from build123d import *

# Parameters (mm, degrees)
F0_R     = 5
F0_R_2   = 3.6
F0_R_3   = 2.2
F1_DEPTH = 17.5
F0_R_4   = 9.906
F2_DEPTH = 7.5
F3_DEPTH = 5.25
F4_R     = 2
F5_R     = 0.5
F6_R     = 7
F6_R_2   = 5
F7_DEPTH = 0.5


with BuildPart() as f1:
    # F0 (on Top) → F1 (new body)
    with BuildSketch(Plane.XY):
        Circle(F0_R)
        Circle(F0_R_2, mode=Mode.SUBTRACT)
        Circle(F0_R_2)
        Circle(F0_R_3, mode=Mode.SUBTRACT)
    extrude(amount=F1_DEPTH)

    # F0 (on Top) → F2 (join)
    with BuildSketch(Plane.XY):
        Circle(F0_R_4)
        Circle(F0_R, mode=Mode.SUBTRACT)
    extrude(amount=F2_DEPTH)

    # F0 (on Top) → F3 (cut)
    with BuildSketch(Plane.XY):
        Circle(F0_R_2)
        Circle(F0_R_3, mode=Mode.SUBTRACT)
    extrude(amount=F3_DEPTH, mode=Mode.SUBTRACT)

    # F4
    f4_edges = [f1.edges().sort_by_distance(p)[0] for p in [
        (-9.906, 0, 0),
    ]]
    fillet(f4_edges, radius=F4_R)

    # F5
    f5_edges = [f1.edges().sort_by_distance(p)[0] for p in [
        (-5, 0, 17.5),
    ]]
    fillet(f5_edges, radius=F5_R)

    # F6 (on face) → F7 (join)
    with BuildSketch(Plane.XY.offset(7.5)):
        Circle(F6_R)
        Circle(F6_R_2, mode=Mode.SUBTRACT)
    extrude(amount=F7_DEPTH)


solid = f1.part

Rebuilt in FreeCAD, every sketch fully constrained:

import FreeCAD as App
import Part
import Sketcher
from FreeCAD import Vector
Q = App.Units.Quantity


def edges_at(feature, points):
    """Names of the edges that pass closest to the given points."""
    edges = feature.Shape.Edges
    near = lambda p: min(range(len(edges)), key=lambda i: edges[i].distToShape(Part.Vertex(*p))[0])
    return sorted({f"Edge{near(p) + 1}" for p in points})

doc = App.newDocument("Part")
body = doc.addObject("PartDesign::Body", "Body")

sketch1 = doc.addObject("Sketcher::SketchObject", "Sketch")
body.addObject(sketch1)
sketch1.AttachmentSupport = (doc.XY_Plane, [""])
sketch1.MapMode = "FlatFace"
sketch1.addGeometry([
    Part.Circle(Vector(0, 0, 0), Vector(0, 0, 1), 5),
    Part.Circle(Vector(0, 0, 0), Vector(0, 0, 1), 2.2),
], False)
sketch1.addConstraint([
    Sketcher.Constraint("Coincident", 0, 3, -1, 1),
    Sketcher.Constraint("Coincident", 1, 3, -1, 1),
    Sketcher.Constraint("Diameter", 0, Q("10 mm")),
    Sketcher.Constraint("Diameter", 1, Q("4.4 mm")),
])
pad1 = doc.addObject("PartDesign::Pad", "Pad")
body.addObject(pad1)
pad1.Profile = sketch1
pad1.Length = 17.5

sketch2 = doc.addObject("Sketcher::SketchObject", "Sketch001")
body.addObject(sketch2)
sketch2.AttachmentSupport = (doc.XY_Plane, [""])
sketch2.MapMode = "FlatFace"
sketch2.addGeometry([
    Part.Circle(Vector(0, 0, 0), Vector(0, 0, 1), 10),
    Part.Circle(Vector(0, 0, 0), Vector(0, 0, 1), 5),
], False)
sketch2.addConstraint([
    Sketcher.Constraint("Coincident", 0, 3, -1, 1),
    Sketcher.Constraint("Coincident", 1, 3, -1, 1),
    Sketcher.Constraint("Diameter", 1, Q("10 mm")),
    Sketcher.Constraint("Diameter", 0, Q("19.812 mm")),
])
pad2 = doc.addObject("PartDesign::Pad", "Pad001")
body.addObject(pad2)
pad2.Profile = sketch2
pad2.Length = 7.5

sketch3 = doc.addObject("Sketcher::SketchObject", "Sketch002")
body.addObject(sketch3)
sketch3.AttachmentSupport = (doc.XY_Plane, [""])
sketch3.MapMode = "FlatFace"
sketch3.addGeometry([
    Part.Circle(Vector(0, 0, 0), Vector(0, 0, 1), 3.6),
    Part.Circle(Vector(0, 0, 0), Vector(0, 0, 1), 2.2),
], False)
sketch3.addConstraint([
    Sketcher.Constraint("Coincident", 0, 3, -1, 1),
    Sketcher.Constraint("Coincident", 1, 3, -1, 1),
    Sketcher.Constraint("Diameter", 0, Q("7.2 mm")),
    Sketcher.Constraint("Diameter", 1, Q("4.4 mm")),
])
pocket1 = doc.addObject("PartDesign::Pocket", "Pocket")
body.addObject(pocket1)
pocket1.Profile = sketch3
pocket1.Length = 5.25
pocket1.Reversed = True
doc.recompute()

fillet = doc.addObject("PartDesign::Fillet", "Fillet")
body.addObject(fillet)
fillet.Base = (pocket1, edges_at(pocket1, [(-9.906, 0, 0)]))
fillet.Radius = 2
doc.recompute()

fillet2 = doc.addObject("PartDesign::Fillet", "Fillet001")
body.addObject(fillet2)
fillet2.Base = (fillet, edges_at(fillet, [(-5, 0, 17.5)]))
fillet2.Radius = 0.5

sketch4 = doc.addObject("Sketcher::SketchObject", "Sketch003")
body.addObject(sketch4)
sketch4.AttachmentSupport = (doc.XY_Plane, [""])
sketch4.MapMode = "FlatFace"
sketch4.AttachmentOffset = App.Placement(Vector(0, 0, 7.5), App.Rotation())
sketch4.addGeometry([
    Part.Circle(Vector(0, 0, 0), Vector(0, 0, 1), 7),
    Part.Circle(Vector(0, 0, 0), Vector(0, 0, 1), 5),
], False)
sketch4.addConstraint([
    Sketcher.Constraint("Coincident", 0, 3, -1, 1),
    Sketcher.Constraint("Coincident", 1, 3, -1, 1),
    Sketcher.Constraint("Diameter", 0, Q("14 mm")),
    Sketcher.Constraint("Diameter", 1, Q("10 mm")),
])
pad3 = doc.addObject("PartDesign::Pad", "Pad002")
body.addObject(pad3)
pad3.Profile = sketch4
pad3.Length = 0.5

doc.recompute()
